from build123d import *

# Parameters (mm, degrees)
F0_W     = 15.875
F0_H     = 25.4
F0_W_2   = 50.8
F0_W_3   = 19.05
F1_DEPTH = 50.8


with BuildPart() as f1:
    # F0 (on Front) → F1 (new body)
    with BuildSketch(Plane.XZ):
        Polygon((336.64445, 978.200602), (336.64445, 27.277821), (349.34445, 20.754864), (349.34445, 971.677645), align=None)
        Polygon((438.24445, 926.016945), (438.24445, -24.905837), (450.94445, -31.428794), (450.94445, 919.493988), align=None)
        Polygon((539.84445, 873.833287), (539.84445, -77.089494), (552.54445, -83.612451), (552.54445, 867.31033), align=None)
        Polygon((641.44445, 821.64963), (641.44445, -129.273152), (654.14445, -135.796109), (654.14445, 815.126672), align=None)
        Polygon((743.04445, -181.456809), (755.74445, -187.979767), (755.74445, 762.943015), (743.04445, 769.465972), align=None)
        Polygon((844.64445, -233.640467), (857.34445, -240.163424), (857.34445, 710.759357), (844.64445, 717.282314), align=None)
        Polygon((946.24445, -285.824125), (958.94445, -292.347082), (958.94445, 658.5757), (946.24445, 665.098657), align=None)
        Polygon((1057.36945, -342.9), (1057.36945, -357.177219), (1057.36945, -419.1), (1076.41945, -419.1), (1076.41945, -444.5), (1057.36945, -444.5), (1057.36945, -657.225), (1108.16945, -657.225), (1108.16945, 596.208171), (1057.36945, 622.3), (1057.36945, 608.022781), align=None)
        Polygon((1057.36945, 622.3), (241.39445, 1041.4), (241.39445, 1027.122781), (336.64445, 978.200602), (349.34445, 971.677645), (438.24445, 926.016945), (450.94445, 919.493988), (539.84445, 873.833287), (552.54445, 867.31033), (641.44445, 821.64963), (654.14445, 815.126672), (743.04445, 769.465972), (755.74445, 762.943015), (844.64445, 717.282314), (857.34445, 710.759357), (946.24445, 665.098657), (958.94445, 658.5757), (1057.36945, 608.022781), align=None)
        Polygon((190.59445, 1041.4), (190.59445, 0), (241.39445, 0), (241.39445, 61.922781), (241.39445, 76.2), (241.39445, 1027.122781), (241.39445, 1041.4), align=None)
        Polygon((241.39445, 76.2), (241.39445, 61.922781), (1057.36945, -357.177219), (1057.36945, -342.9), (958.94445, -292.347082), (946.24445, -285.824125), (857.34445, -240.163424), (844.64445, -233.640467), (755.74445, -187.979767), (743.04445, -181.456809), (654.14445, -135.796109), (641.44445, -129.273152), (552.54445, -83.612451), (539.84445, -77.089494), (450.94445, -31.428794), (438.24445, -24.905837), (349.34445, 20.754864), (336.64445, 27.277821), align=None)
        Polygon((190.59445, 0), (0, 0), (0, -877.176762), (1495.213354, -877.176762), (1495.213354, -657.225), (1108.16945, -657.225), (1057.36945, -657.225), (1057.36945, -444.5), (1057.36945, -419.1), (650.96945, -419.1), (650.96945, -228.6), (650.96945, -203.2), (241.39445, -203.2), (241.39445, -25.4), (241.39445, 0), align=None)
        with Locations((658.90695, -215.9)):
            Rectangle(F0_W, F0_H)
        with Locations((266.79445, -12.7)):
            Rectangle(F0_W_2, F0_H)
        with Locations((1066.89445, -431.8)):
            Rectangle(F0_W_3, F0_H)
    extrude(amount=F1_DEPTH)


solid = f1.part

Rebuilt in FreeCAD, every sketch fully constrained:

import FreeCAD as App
import Part
import Sketcher

V = App.Vector
Q = App.Units.Quantity

doc = App.newDocument("Part")
body = doc.addObject("PartDesign::Body", "Body")

sketch1 = doc.addObject("Sketcher::SketchObject", "Sketch")
body.addObject(sketch1)
sketch1.AttachmentSupport = (doc.XZ_Plane, [""])
sketch1.MapMode = "FlatFace"
sketch1.addGeometry([
    Part.LineSegment(V(1108.16945, -657.225, 0), V(1108.16945, 596.208171, 0)),
    Part.LineSegment(V(1108.16945, 596.208171, 0), V(1057.36945, 622.3, 0)),
    Part.LineSegment(V(1057.36945, 622.3, 0), V(241.39445, 1041.4, 0)),
    Part.LineSegment(V(241.39445, 1041.4, 0), V(190.59445, 1041.4, 0)),
    Part.LineSegment(V(190.59445, 1041.4, 0), V(190.59445, 0, 0)),
    Part.LineSegment(V(190.59445, 0, 0), V(0, 0, 0)),
    Part.LineSegment(V(0, 0, 0), V(0, -877.176762, 0)),
    Part.LineSegment(V(0, -877.176762, 0), V(1495.213354, -877.176762, 0)),
    Part.LineSegment(V(1495.213354, -877.176762, 0), V(1495.213354, -657.225, 0)),
    Part.LineSegment(V(1495.213354, -657.225, 0), V(1108.16945, -657.225, 0)),
    Part.LineSegment(V(1057.36945, -357.177219, 0), V(1057.36945, -419.1, 0)),
    Part.LineSegment(V(1057.36945, -419.1, 0), V(650.96945, -419.1, 0)),
    Part.LineSegment(V(650.96945, -419.1, 0), V(650.96945, -228.6, 0)),
    Part.LineSegment(V(650.96945, -228.6, 0), V(666.84445, -228.6, 0)),
    Part.LineSegment(V(666.84445, -228.6, 0), V(666.84445, -203.2, 0)),
    Part.LineSegment(V(666.84445, -203.2, 0), V(241.39445, -203.2, 0)),
    Part.LineSegment(V(241.39445, -203.2, 0), V(241.39445, -25.4, 0)),
    Part.LineSegment(V(241.39445, -25.4, 0), V(292.19445, -25.4, 0)),
    Part.LineSegment(V(292.19445, -25.4, 0), V(292.19445, 0, 0)),
    Part.LineSegment(V(292.19445, 0, 0), V(241.39445, 0, 0)),
    Part.LineSegment(V(241.39445, 0, 0), V(241.39445, 61.922781, 0)),
    Part.LineSegment(V(241.39445, 61.922781, 0), V(1057.36945, -357.177219, 0)),
    Part.LineSegment(V(755.74445, -187.979767, 0), V(755.74445, 762.943015, 0)),
    Part.LineSegment(V(755.74445, 762.943015, 0), V(844.64445, 717.282314, 0)),
    Part.LineSegment(V(844.64445, 717.282314, 0), V(844.64445, -233.640467, 0)),
    Part.LineSegment(V(844.64445, -233.640467, 0), V(755.74445, -187.979767, 0)),
    Part.LineSegment(V(857.34445, -240.163424, 0), V(857.34445, 710.759357, 0)),
    Part.LineSegment(V(857.34445, 710.759357, 0), V(946.24445, 665.098657, 0)),
    Part.LineSegment(V(946.24445, 665.098657, 0), V(946.24445, -285.824125, 0)),
    Part.LineSegment(V(946.24445, -285.824125, 0), V(857.34445, -240.163424, 0)),
    Part.LineSegment(V(958.94445, -292.347082, 0), V(958.94445, 658.5757, 0)),
    Part.LineSegment(V(958.94445, 658.5757, 0), V(1057.36945, 608.022781, 0)),
    Part.LineSegment(V(1057.36945, 608.022781, 0), V(1057.36945, -342.9, 0)),
    Part.LineSegment(V(1057.36945, -342.9, 0), V(958.94445, -292.347082, 0)),
    Part.LineSegment(V(349.34445, 20.754864, 0), V(349.34445, 971.677645, 0)),
    Part.LineSegment(V(349.34445, 971.677645, 0), V(438.24445, 926.016945, 0)),
    Part.LineSegment(V(438.24445, 926.016945, 0), V(438.24445, -24.905837, 0)),
    Part.LineSegment(V(438.24445, -24.905837, 0), V(349.34445, 20.754864, 0)),
    Part.LineSegment(V(336.64445, 978.200602, 0), V(336.64445, 27.277821, 0)),
    Part.LineSegment(V(336.64445, 27.277821, 0), V(241.39445, 76.2, 0)),
    Part.LineSegment(V(241.39445, 76.2, 0), V(241.39445, 1027.122781, 0)),
    Part.LineSegment(V(241.39445, 1027.122781, 0), V(336.64445, 978.200602, 0)),
    Part.LineSegment(V(450.94445, -31.428794, 0), V(450.94445, 919.493988, 0)),
    Part.LineSegment(V(450.94445, 919.493988, 0), V(539.84445, 873.833287, 0)),
    Part.LineSegment(V(539.84445, 873.833287, 0), V(539.84445, -77.089494, 0)),
    Part.LineSegment(V(539.84445, -77.089494, 0), V(450.94445, -31.428794, 0)),
    Part.LineSegment(V(552.54445, -83.612451, 0), V(552.54445, 867.31033, 0)),
    Part.LineSegment(V(552.54445, 867.31033, 0), V(641.44445, 821.64963, 0)),
    Part.LineSegment(V(641.44445, 821.64963, 0), V(641.44445, -129.273152, 0)),
    Part.LineSegment(V(641.44445, -129.273152, 0), V(552.54445, -83.612451, 0)),
    Part.LineSegment(V(654.14445, -135.796109, 0), V(654.14445, 815.126672, 0)),
    Part.LineSegment(V(654.14445, 815.126672, 0), V(743.04445, 769.465972, 0)),
    Part.LineSegment(V(743.04445, 769.465972, 0), V(743.04445, -181.456809, 0)),
    Part.LineSegment(V(743.04445, -181.456809, 0), V(654.14445, -135.796109, 0)),
], False)
sketch1.addConstraint([
    Sketcher.Constraint("Coincident", 0, 2, 1, 1),
    Sketcher.Constraint("Coincident", 1, 2, 2, 1),
    Sketcher.Constraint("Coincident", 2, 2, 3, 1),
    Sketcher.Constraint("Coincident", 3, 2, 4, 1),
    Sketcher.Constraint("Coincident", 4, 2, 5, 1),
    Sketcher.Constraint("Coincident", 5, 2, 6, 1),
    Sketcher.Constraint("Coincident", 6, 2, 7, 1),
    Sketcher.Constraint("Coincident", 7, 2, 8, 1),
    Sketcher.Constraint("Coincident", 8, 2, 9, 1),
    Sketcher.Constraint("Coincident", 9, 2, 0, 1),
    Sketcher.Constraint("Coincident", 10, 2, 11, 1),
    Sketcher.Constraint("Coincident", 11, 2, 12, 1),
    Sketcher.Constraint("Coincident", 12, 2, 13, 1),
    Sketcher.Constraint("Coincident", 13, 2, 14, 1),
    Sketcher.Constraint("Coincident", 14, 2, 15, 1),
    Sketcher.Constraint("Coincident", 15, 2, 16, 1),
    Sketcher.Constraint("Coincident", 16, 2, 17, 1),
    Sketcher.Constraint("Coincident", 17, 2, 18, 1),
    Sketcher.Constraint("Coincident", 18, 2, 19, 1),
    Sketcher.Constraint("Coincident", 19, 2, 20, 1),
    Sketcher.Constraint("Coincident", 20, 2, 21, 1),
    Sketcher.Constraint("Coincident", 21, 2, 10, 1),
    Sketcher.Constraint("Coincident", 22, 2, 23, 1),
    Sketcher.Constraint("Coincident", 23, 2, 24, 1),
    Sketcher.Constraint("Coincident", 24, 2, 25, 1),
    Sketcher.Constraint("Coincident", 25, 2, 22, 1),
    Sketcher.Constraint("Coincident", 26, 2, 27, 1),
    Sketcher.Constraint("Coincident", 27, 2, 28, 1),
    Sketcher.Constraint("Coincident", 28, 2, 29, 1),
    Sketcher.Constraint("Coincident", 29, 2, 26, 1),
    Sketcher.Constraint("Coincident", 30, 2, 31, 1),
    Sketcher.Constraint("Coincident", 31, 2, 32, 1),
    Sketcher.Constraint("Coincident", 32, 2, 33, 1),
    Sketcher.Constraint("Coincident", 33, 2, 30, 1),
    Sketcher.Constraint("Coincident", 34, 2, 35, 1),
    Sketcher.Constraint("Coincident", 35, 2, 36, 1),
    Sketcher.Constraint("Coincident", 36, 2, 37, 1),
    Sketcher.Constraint("Coincident", 37, 2, 34, 1),
    Sketcher.Constraint("Coincident", 38, 2, 39, 1),
    Sketcher.Constraint("Coincident", 39, 2, 40, 1),
    Sketcher.Constraint("Coincident", 40, 2, 41, 1),
    Sketcher.Constraint("Coincident", 41, 2, 38, 1),
    Sketcher.Constraint("Coincident", 42, 2, 43, 1),
    Sketcher.Constraint("Coincident", 43, 2, 44, 1),
    Sketcher.Constraint("Coincident", 44, 2, 45, 1),
    Sketcher.Constraint("Coincident", 45, 2, 42, 1),
    Sketcher.Constraint("Coincident", 46, 2, 47, 1),
    Sketcher.Constraint("Coincident", 47, 2, 48, 1),
    Sketcher.Constraint("Coincident", 48, 2, 49, 1),
    Sketcher.Constraint("Coincident", 49, 2, 46, 1),
    Sketcher.Constraint("Coincident", 50, 2, 51, 1),
    Sketcher.Constraint("Coincident", 51, 2, 52, 1),
    Sketcher.Constraint("Coincident", 52, 2, 53, 1),
    Sketcher.Constraint("Coincident", 53, 2, 50, 1),
    Sketcher.Constraint("Vertical", 0),
    Sketcher.Constraint("Horizontal", 3),
    Sketcher.Constraint("Vertical", 4),
    Sketcher.Constraint("Horizontal", 5),
    Sketcher.Constraint("Vertical", 6),
    Sketcher.Constraint("Horizontal", 7),
    Sketcher.Constraint("Vertical", 8),
    Sketcher.Constraint("Horizontal", 9),
    Sketcher.Constraint("Vertical", 10),
    Sketcher.Constraint("Horizontal", 11),
    Sketcher.Constraint("Vertical", 12),
    Sketcher.Constraint("Horizontal", 13),
    Sketcher.Constraint("Vertical", 14),
    Sketcher.Constraint("Horizontal", 15),
    Sketcher.Constraint("Vertical", 16),
    Sketcher.Constraint("Horizontal", 17),
    Sketcher.Constraint("Vertical", 18),
    Sketcher.Constraint("Horizontal", 19),
    Sketcher.Constraint("Vertical", 20),
    Sketcher.Constraint("Vertical", 22),
    Sketcher.Constraint("Vertical", 24),
    Sketcher.Constraint("Vertical", 26),
    Sketcher.Constraint("Vertical", 28),
    Sketcher.Constraint("Vertical", 30),
    Sketcher.Constraint("Vertical", 32),
    Sketcher.Constraint("Vertical", 34),
    Sketcher.Constraint("Vertical", 36),
    Sketcher.Constraint("Vertical", 38),
    Sketcher.Constraint("Vertical", 40),
    Sketcher.Constraint("Vertical", 42),
    Sketcher.Constraint("Vertical", 44),
    Sketcher.Constraint("Vertical", 46),
    Sketcher.Constraint("Vertical", 48),
    Sketcher.Constraint("Vertical", 50),
    Sketcher.Constraint("Vertical", 52),
    Sketcher.Constraint("Coincident", 5, 2, -1, 1),
    Sketcher.Constraint("PointOnObject", 18, 2, -1),
    Sketcher.Constraint("Parallel", 1, 2),
    Sketcher.Constraint("Parallel", 2, 21),
    Sketcher.Constraint("Parallel", 21, 23),
    Sketcher.Constraint("Parallel", 23, 25),
    Sketcher.Constraint("Parallel", 25, 27),
    Sketcher.Constraint("Parallel", 27, 29),
    Sketcher.Constraint("Parallel", 29, 31),
    Sketcher.Constraint("Parallel", 31, 33),
    Sketcher.Constraint("Parallel", 33, 35),
    Sketcher.Constraint("Parallel", 35, 37),
    Sketcher.Constraint("Parallel", 37, 39),
    Sketcher.Constraint("Parallel", 39, 41),
    Sketcher.Constraint("Parallel", 41, 43),
    Sketcher.Constraint("Parallel", 43, 45),
    Sketcher.Constraint("Parallel", 45, 47),
    Sketcher.Constraint("Parallel", 47, 49),
    Sketcher.Constraint("Parallel", 49, 51),
    Sketcher.Constraint("Parallel", 51, 53),
    Sketcher.Constraint("Vertical", 1, 2, 10, 2),
    Sketcher.Constraint("Vertical", 2, 2, 15, 2),
    Sketcher.Constraint("Vertical", 16, 2, 19, 2),
    Sketcher.Constraint("Vertical", 21, 2, 31, 2),
    Sketcher.Constraint("Vertical", 20, 2, 39, 2),
    Sketcher.Constraint("Equal", 3, 17),
    Sketcher.Constraint("Equal", 14, 18),
    Sketcher.Constraint("Equal", 10, 20),
    Sketcher.Constraint("Equal", 24, 26),
    Sketcher.Constraint("Equal", 28, 30),
    Sketcher.Constraint("Equal", 32, 34),
    Sketcher.Constraint("Equal", 36, 38),
    Sketcher.Constraint("Equal", 40, 42),
    Sketcher.Constraint("Equal", 44, 46),
    Sketcher.Constraint("Equal", 48, 50),
    Sketcher.Constraint("Equal", 25, 27),
    Sketcher.Constraint("Equal", 29, 35),
    Sketcher.Constraint("Equal", 37, 43),
    Sketcher.Constraint("Equal", 45, 47),
    Sketcher.Constraint("Equal", 49, 51),
    Sketcher.Constraint("DistanceX", 3, 2, 3, 1, Q("2 in")),
    Sketcher.Constraint("DistanceX", 11, 2, 11, 1, Q("16 in")),
    Sketcher.Constraint("DistanceY", 4, 2, 4, 1, Q("41 in")),
    Sketcher.Constraint("DistanceY", 14, 1, 14, 2, Q("1 in")),
    Sketcher.Constraint("DistanceY", 16, 1, 16, 2, Q("7 in")),
    Sketcher.Constraint("DistanceY", 12, 1, 12, 2, Q("7.5 in")),
    Sketcher.Constraint("DistanceY", -1, 1, 39, 2, Q("3 in")),
    Sketcher.Constraint("DistanceX", 1, 2, 0, 2, Q("2 in")),
    Sketcher.Constraint("DistanceX", 13, 2, 24, 2, Q("7 in")),
    Sketcher.Constraint("DistanceX", 22, 2, 26, 2, Q("4 in")),
    Sketcher.Constraint("DistanceX", 26, 2, 30, 2, Q("4 in")),
    Sketcher.Constraint("DistanceY", 10, 2, 32, 2, Q("3 in")),
    Sketcher.Constraint("DistanceX", 34, 2, 22, 2, Q("16 in")),
    Sketcher.Constraint("DistanceX", 41, 2, 35, 2, Q("4 in")),
    Sketcher.Constraint("DistanceX", 34, 2, 42, 2, Q("4 in")),
    Sketcher.Constraint("DistanceX", 42, 2, 46, 2, Q("4 in")),
    Sketcher.Constraint("DistanceX", 50, 2, 22, 2, Q("4 in")),
    Sketcher.Constraint("DistanceX", 15, 2, 15, 1, Q("16.75 in")),
    Sketcher.Constraint("DistanceX", 22, 2, 23, 2, Q("3.5 in")),
    Sketcher.Constraint("DistanceX", 13, 1, 13, 2, Q("0.625 in")),
    Sketcher.Constraint("DistanceY", 8, 2, -1, 1, Q("25.875 in")),
    Sketcher.Constraint("DistanceX", 5, 2, 5, 1, 190.59445),
    Sketcher.Constraint("DistanceY", 10, 2, 10, 1, 61.922781),
    Sketcher.Constraint("DistanceY", 22, 1, 22, 2, 950.922782),
    Sketcher.Constraint("DistanceX", 7, 1, 7, 2, 1495.213354),
    Sketcher.Constraint("DistanceY", 6, 2, 6, 1, 877.176762),
    Sketcher.Constraint("DistanceY", -1, 1, 46, 2, 867.31033),
    Sketcher.Constraint("DistanceY", -1, 1, 50, 2, 815.126672),
    Sketcher.Constraint("DistanceY", 21, 2, 24, 2, 123.536752),
    Sketcher.Constraint("DistanceY", 33, 2, 29, 2, 52.183658),
    Sketcher.Constraint("DistanceY", 22, 2, 34, 2, 208.73463),
    Sketcher.Constraint("DistanceY", 44, 2, 37, 2, 97.844358),
])
pad1 = doc.addObject("PartDesign::Pad", "Pad")
body.addObject(pad1)
pad1.Profile = sketch1
pad1.Length = Q("2 in")

doc.recompute()
